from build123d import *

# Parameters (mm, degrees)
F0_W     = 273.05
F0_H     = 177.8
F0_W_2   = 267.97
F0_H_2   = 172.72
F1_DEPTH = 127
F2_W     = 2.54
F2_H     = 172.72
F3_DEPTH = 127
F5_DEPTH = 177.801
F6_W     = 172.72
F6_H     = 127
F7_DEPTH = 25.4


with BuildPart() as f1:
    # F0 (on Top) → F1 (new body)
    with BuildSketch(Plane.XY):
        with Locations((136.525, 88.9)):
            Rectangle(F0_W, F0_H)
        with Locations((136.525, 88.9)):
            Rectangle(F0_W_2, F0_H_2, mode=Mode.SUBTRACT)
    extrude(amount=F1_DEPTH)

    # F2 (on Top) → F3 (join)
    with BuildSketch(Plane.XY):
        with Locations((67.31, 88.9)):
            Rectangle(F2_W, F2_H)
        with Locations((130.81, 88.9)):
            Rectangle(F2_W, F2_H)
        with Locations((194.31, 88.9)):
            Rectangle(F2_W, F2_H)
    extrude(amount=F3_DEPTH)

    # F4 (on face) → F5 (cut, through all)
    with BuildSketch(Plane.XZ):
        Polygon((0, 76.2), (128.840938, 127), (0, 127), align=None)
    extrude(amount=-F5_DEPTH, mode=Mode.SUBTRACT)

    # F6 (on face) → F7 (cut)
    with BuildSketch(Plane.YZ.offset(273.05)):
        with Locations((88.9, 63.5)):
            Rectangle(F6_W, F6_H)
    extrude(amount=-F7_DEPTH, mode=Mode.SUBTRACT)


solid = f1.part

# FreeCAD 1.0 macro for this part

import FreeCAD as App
import Part
import Sketcher
Q = App.Units.Quantity

doc = App.newDocument("Part")
body = doc.addObject("PartDesign::Body", "Body")

# Sketch on XY plane
sketch1 = body.newObject("Sketcher::SketchObject", "Sketch")
sketch1.AttachmentSupport = (doc.getObject("XY_Plane"), [""])
sketch1.MapMode = "FlatFace"
sketch1.addGeometry(Part.LineSegment(App.Vector(0, 177.8, 0), App.Vector(0, 0, 0)), False)
sketch1.addGeometry(Part.LineSegment(App.Vector(0, 0, 0), App.Vector(273.05, 0, 0)), False)
sketch1.addGeometry(Part.LineSegment(App.Vector(273.05, 0, 0), App.Vector(273.05, 177.8, 0)), False)
sketch1.addGeometry(Part.LineSegment(App.Vector(273.05, 177.8, 0), App.Vector(0, 177.8, 0)), False)
sketch1.addGeometry(Part.LineSegment(App.Vector(270.51, 2.54, 0), App.Vector(2.54, 2.54, 0)), False)
sketch1.addGeometry(Part.LineSegment(App.Vector(2.54, 2.54, 0), App.Vector(2.54, 175.26, 0)), False)
sketch1.addGeometry(Part.LineSegment(App.Vector(2.54, 175.26, 0), App.Vector(270.51, 175.26, 0)), False)
sketch1.addGeometry(Part.LineSegment(App.Vector(270.51, 175.26, 0), App.Vector(270.51, 2.54, 0)), False)
sketch1.addConstraint(Sketcher.Constraint("Coincident", 0, 2, 1, 1))
sketch1.addConstraint(Sketcher.Constraint("Coincident", 1, 2, 2, 1))
sketch1.addConstraint(Sketcher.Constraint("Coincident", 2, 2, 3, 1))
sketch1.addConstraint(Sketcher.Constraint("Coincident", 3, 2, 0, 1))
sketch1.addConstraint(Sketcher.Constraint("Coincident", 4, 2, 5, 1))
sketch1.addConstraint(Sketcher.Constraint("Coincident", 5, 2, 6, 1))
sketch1.addConstraint(Sketcher.Constraint("Coincident", 6, 2, 7, 1))
sketch1.addConstraint(Sketcher.Constraint("Coincident", 7, 2, 4, 1))
sketch1.addConstraint(Sketcher.Constraint("Vertical", 0))
sketch1.addConstraint(Sketcher.Constraint("Horizontal", 1))
sketch1.addConstraint(Sketcher.Constraint("Vertical", 2))
sketch1.addConstraint(Sketcher.Constraint("Horizontal", 3))
sketch1.addConstraint(Sketcher.Constraint("Horizontal", 4))
sketch1.addConstraint(Sketcher.Constraint("Vertical", 5))
sketch1.addConstraint(Sketcher.Constraint("Horizontal", 6))
sketch1.addConstraint(Sketcher.Constraint("Vertical", 7))
sketch1.addConstraint(Sketcher.Constraint("Coincident", 0, 2, -1, 1))
sketch1.addConstraint(Sketcher.Constraint("DistanceY", 0, 2, 0, 1, Q("7 in")))
sketch1.addConstraint(Sketcher.Constraint("DistanceY", 5, 1, 5, 2, Q("6.8 in")))
sketch1.addConstraint(Sketcher.Constraint("DistanceX", 1, 1, 1, 2, Q("10.75 in")))
sketch1.addConstraint(Sketcher.Constraint("DistanceX", 4, 2, 4, 1, Q("10.55 in")))
sketch1.addConstraint(Sketcher.Constraint("DistanceX", -1, 1, 4, 2, Q("0.1 in")))
sketch1.addConstraint(Sketcher.Constraint("DistanceY", -1, 1, 4, 2, Q("0.1 in")))
pad1 = body.newObject("PartDesign::Pad", "Pad")
pad1.Profile = sketch1
pad1.Length = Q("5 in")

# Sketch on XY plane
sketch2 = body.newObject("Sketcher::SketchObject", "Sketch001")
sketch2.AttachmentSupport = (doc.getObject("XY_Plane"), [""])
sketch2.MapMode = "FlatFace"
sketch2.addGeometry(Part.LineSegment(App.Vector(66.04, 175.26, 0), App.Vector(66.04, 2.54, 0)), False)
sketch2.addGeometry(Part.LineSegment(App.Vector(66.04, 2.54, 0), App.Vector(68.58, 2.54, 0)), False)
sketch2.addGeometry(Part.LineSegment(App.Vector(68.58, 2.54, 0), App.Vector(68.58, 175.26, 0)), False)
sketch2.addGeometry(Part.LineSegment(App.Vector(68.58, 175.26, 0), App.Vector(66.04, 175.26, 0)), False)
sketch2.addGeometry(Part.LineSegment(App.Vector(129.54, 175.26, 0), App.Vector(129.54, 2.54, 0)), False)
sketch2.addGeometry(Part.LineSegment(App.Vector(129.54, 2.54, 0), App.Vector(132.08, 2.54, 0)), False)
sketch2.addGeometry(Part.LineSegment(App.Vector(132.08, 2.54, 0), App.Vector(132.08, 175.26, 0)), False)
sketch2.addGeometry(Part.LineSegment(App.Vector(132.08, 175.26, 0), App.Vector(129.54, 175.26, 0)), False)
sketch2.addGeometry(Part.LineSegment(App.Vector(193.04, 175.26, 0), App.Vector(193.04, 2.54, 0)), False)
sketch2.addGeometry(Part.LineSegment(App.Vector(193.04, 2.54, 0), App.Vector(195.58, 2.54, 0)), False)
sketch2.addGeometry(Part.LineSegment(App.Vector(195.58, 2.54, 0), App.Vector(195.58, 175.26, 0)), False)
sketch2.addGeometry(Part.LineSegment(App.Vector(195.58, 175.26, 0), App.Vector(193.04, 175.26, 0)), False)
sketch2.addConstraint(Sketcher.Constraint("Coincident", 0, 2, 1, 1))
sketch2.addConstraint(Sketcher.Constraint("Coincident", 1, 2, 2, 1))
sketch2.addConstraint(Sketcher.Constraint("Coincident", 2, 2, 3, 1))
sketch2.addConstraint(Sketcher.Constraint("Coincident", 3, 2, 0, 1))
sketch2.addConstraint(Sketcher.Constraint("Coincident", 4, 2, 5, 1))
sketch2.addConstraint(Sketcher.Constraint("Coincident", 5, 2, 6, 1))
sketch2.addConstraint(Sketcher.Constraint("Coincident", 6, 2, 7, 1))
sketch2.addConstraint(Sketcher.Constraint("Coincident", 7, 2, 4, 1))
sketch2.addConstraint(Sketcher.Constraint("Coincident", 8, 2, 9, 1))
sketch2.addConstraint(Sketcher.Constraint("Coincident", 9, 2, 10, 1))
sketch2.addConstraint(Sketcher.Constraint("Coincident", 10, 2, 11, 1))
sketch2.addConstraint(Sketcher.Constraint("Coincident", 11, 2, 8, 1))
sketch2.addConstraint(Sketcher.Constraint("Vertical", 0))
sketch2.addConstraint(Sketcher.Constraint("Horizontal", 1))
sketch2.addConstraint(Sketcher.Constraint("Vertical", 2))
sketch2.addConstraint(Sketcher.Constraint("Horizontal", 3))
sketch2.addConstraint(Sketcher.Constraint("Vertical", 4))
sketch2.addConstraint(Sketcher.Constraint("Horizontal", 5))
sketch2.addConstraint(Sketcher.Constraint("Vertical", 6))
sketch2.addConstraint(Sketcher.Constraint("Horizontal", 7))
sketch2.addConstraint(Sketcher.Constraint("Vertical", 8))
sketch2.addConstraint(Sketcher.Constraint("Horizontal", 9))
sketch2.addConstraint(Sketcher.Constraint("Vertical", 10))
sketch2.addConstraint(Sketcher.Constraint("Horizontal", 11))
sketch2.addConstraint(Sketcher.Constraint("Horizontal", 1, 2, 4, 2))
sketch2.addConstraint(Sketcher.Constraint("Horizontal", 3, 2, 6, 2))
sketch2.addConstraint(Sketcher.Constraint("Horizontal", 5, 2, 8, 2))
sketch2.addConstraint(Sketcher.Constraint("Horizontal", 7, 2, 10, 2))
sketch2.addConstraint(Sketcher.Constraint("Equal", 3, 5))
sketch2.addConstraint(Sketcher.Constraint("Equal", 7, 9))
sketch2.addConstraint(Sketcher.Constraint("DistanceX", 1, 1, 1, 2, Q("0.1 in")))
sketch2.addConstraint(Sketcher.Constraint("DistanceY", 0, 2, 0, 1, Q("6.8 in")))
sketch2.addConstraint(Sketcher.Constraint("DistanceX", 0, 2, 8, 2, Q("5 in")))
sketch2.addConstraint(Sketcher.Constraint("DistanceX", -1, 1, 0, 2, Q("2.6 in")))
sketch2.addConstraint(Sketcher.Constraint("DistanceY", -1, 1, 0, 2, Q("0.1 in")))
sketch2.addConstraint(Sketcher.Constraint("DistanceX", -1, 1, 4, 2, Q("5.1 in")))
pad2 = body.newObject("PartDesign::Pad", "Pad001")
pad2.Profile = sketch2
pad2.Length = Q("5 in")

# Sketch on XZ plane
sketch3 = body.newObject("Sketcher::SketchObject", "Sketch002")
sketch3.AttachmentSupport = (doc.getObject("XZ_Plane"), [""])
sketch3.MapMode = "FlatFace"
sketch3.addGeometry(Part.LineSegment(App.Vector(0, 76.2, 0), App.Vector(128.840938, 127, 0)), False)
sketch3.addGeometry(Part.LineSegment(App.Vector(128.840938, 127, 0), App.Vector(0, 127, 0)), False)
sketch3.addGeometry(Part.LineSegment(App.Vector(0, 127, 0), App.Vector(0, 76.2, 0)), False)
sketch3.addConstraint(Sketcher.Constraint("Coincident", 0, 2, 1, 1))
sketch3.addConstraint(Sketcher.Constraint("Coincident", 1, 2, 2, 1))
sketch3.addConstraint(Sketcher.Constraint("Coincident", 2, 2, 0, 1))
sketch3.addConstraint(Sketcher.Constraint("Horizontal", 1))
sketch3.addConstraint(Sketcher.Constraint("Vertical", 2))
sketch3.addConstraint(Sketcher.Constraint("PointOnObject", 1, 2, -2))
sketch3.addConstraint(Sketcher.Constraint("DistanceY", 2, 2, 2, 1, Q("2 in")))
sketch3.addConstraint(Sketcher.Constraint("DistanceY", -1, 1, 0, 2, Q("5 in")))
sketch3.addConstraint(Sketcher.Constraint("DistanceX", 1, 2, 1, 1, Q("128.840938 mm")))
pocket1 = body.newObject("PartDesign::Pocket", "Pocket")
pocket1.Profile = sketch3
pocket1.Type = "ThroughAll"

# Sketch on YZ plane
sketch4 = body.newObject("Sketcher::SketchObject", "Sketch003")
sketch4.AttachmentSupport = (doc.getObject("YZ_Plane"), [""])
sketch4.MapMode = "FlatFace"
sketch4.AttachmentOffset = App.Placement(App.Vector(0, 0, 10.75 * 25.4), App.Rotation())
sketch4.addGeometry(Part.LineSegment(App.Vector(2.54, 127, 0), App.Vector(2.54, 0, 0)), False)
sketch4.addGeometry(Part.LineSegment(App.Vector(2.54, 0, 0), App.Vector(175.26, 0, 0)), False)
sketch4.addGeometry(Part.LineSegment(App.Vector(175.26, 0, 0), App.Vector(175.26, 127, 0)), False)
sketch4.addGeometry(Part.LineSegment(App.Vector(175.26, 127, 0), App.Vector(2.54, 127, 0)), False)
sketch4.addConstraint(Sketcher.Constraint("Coincident", 0, 2, 1, 1))
sketch4.addConstraint(Sketcher.Constraint("Coincident", 1, 2, 2, 1))
sketch4.addConstraint(Sketcher.Constraint("Coincident", 2, 2, 3, 1))
sketch4.addConstraint(Sketcher.Constraint("Coincident", 3, 2, 0, 1))
sketch4.addConstraint(Sketcher.Constraint("Vertical", 0))
sketch4.addConstraint(Sketcher.Constraint("Horizontal", 1))
sketch4.addConstraint(Sketcher.Constraint("Vertical", 2))
sketch4.addConstraint(Sketcher.Constraint("Horizontal", 3))
sketch4.addConstraint(Sketcher.Constraint("PointOnObject", 0, 2, -1))
sketch4.addConstraint(Sketcher.Constraint("DistanceY", 0, 2, 0, 1, Q("5 in")))
sketch4.addConstraint(Sketcher.Constraint("DistanceX", 1, 1, 1, 2, Q("6.8 in")))
sketch4.addConstraint(Sketcher.Constraint("DistanceX", -1, 1, 0, 2, Q("0.1 in")))
pocket2 = body.newObject("PartDesign::Pocket", "Pocket001")
pocket2.Profile = sketch4
pocket2.Length = Q("1 in")

doc.recompute()
